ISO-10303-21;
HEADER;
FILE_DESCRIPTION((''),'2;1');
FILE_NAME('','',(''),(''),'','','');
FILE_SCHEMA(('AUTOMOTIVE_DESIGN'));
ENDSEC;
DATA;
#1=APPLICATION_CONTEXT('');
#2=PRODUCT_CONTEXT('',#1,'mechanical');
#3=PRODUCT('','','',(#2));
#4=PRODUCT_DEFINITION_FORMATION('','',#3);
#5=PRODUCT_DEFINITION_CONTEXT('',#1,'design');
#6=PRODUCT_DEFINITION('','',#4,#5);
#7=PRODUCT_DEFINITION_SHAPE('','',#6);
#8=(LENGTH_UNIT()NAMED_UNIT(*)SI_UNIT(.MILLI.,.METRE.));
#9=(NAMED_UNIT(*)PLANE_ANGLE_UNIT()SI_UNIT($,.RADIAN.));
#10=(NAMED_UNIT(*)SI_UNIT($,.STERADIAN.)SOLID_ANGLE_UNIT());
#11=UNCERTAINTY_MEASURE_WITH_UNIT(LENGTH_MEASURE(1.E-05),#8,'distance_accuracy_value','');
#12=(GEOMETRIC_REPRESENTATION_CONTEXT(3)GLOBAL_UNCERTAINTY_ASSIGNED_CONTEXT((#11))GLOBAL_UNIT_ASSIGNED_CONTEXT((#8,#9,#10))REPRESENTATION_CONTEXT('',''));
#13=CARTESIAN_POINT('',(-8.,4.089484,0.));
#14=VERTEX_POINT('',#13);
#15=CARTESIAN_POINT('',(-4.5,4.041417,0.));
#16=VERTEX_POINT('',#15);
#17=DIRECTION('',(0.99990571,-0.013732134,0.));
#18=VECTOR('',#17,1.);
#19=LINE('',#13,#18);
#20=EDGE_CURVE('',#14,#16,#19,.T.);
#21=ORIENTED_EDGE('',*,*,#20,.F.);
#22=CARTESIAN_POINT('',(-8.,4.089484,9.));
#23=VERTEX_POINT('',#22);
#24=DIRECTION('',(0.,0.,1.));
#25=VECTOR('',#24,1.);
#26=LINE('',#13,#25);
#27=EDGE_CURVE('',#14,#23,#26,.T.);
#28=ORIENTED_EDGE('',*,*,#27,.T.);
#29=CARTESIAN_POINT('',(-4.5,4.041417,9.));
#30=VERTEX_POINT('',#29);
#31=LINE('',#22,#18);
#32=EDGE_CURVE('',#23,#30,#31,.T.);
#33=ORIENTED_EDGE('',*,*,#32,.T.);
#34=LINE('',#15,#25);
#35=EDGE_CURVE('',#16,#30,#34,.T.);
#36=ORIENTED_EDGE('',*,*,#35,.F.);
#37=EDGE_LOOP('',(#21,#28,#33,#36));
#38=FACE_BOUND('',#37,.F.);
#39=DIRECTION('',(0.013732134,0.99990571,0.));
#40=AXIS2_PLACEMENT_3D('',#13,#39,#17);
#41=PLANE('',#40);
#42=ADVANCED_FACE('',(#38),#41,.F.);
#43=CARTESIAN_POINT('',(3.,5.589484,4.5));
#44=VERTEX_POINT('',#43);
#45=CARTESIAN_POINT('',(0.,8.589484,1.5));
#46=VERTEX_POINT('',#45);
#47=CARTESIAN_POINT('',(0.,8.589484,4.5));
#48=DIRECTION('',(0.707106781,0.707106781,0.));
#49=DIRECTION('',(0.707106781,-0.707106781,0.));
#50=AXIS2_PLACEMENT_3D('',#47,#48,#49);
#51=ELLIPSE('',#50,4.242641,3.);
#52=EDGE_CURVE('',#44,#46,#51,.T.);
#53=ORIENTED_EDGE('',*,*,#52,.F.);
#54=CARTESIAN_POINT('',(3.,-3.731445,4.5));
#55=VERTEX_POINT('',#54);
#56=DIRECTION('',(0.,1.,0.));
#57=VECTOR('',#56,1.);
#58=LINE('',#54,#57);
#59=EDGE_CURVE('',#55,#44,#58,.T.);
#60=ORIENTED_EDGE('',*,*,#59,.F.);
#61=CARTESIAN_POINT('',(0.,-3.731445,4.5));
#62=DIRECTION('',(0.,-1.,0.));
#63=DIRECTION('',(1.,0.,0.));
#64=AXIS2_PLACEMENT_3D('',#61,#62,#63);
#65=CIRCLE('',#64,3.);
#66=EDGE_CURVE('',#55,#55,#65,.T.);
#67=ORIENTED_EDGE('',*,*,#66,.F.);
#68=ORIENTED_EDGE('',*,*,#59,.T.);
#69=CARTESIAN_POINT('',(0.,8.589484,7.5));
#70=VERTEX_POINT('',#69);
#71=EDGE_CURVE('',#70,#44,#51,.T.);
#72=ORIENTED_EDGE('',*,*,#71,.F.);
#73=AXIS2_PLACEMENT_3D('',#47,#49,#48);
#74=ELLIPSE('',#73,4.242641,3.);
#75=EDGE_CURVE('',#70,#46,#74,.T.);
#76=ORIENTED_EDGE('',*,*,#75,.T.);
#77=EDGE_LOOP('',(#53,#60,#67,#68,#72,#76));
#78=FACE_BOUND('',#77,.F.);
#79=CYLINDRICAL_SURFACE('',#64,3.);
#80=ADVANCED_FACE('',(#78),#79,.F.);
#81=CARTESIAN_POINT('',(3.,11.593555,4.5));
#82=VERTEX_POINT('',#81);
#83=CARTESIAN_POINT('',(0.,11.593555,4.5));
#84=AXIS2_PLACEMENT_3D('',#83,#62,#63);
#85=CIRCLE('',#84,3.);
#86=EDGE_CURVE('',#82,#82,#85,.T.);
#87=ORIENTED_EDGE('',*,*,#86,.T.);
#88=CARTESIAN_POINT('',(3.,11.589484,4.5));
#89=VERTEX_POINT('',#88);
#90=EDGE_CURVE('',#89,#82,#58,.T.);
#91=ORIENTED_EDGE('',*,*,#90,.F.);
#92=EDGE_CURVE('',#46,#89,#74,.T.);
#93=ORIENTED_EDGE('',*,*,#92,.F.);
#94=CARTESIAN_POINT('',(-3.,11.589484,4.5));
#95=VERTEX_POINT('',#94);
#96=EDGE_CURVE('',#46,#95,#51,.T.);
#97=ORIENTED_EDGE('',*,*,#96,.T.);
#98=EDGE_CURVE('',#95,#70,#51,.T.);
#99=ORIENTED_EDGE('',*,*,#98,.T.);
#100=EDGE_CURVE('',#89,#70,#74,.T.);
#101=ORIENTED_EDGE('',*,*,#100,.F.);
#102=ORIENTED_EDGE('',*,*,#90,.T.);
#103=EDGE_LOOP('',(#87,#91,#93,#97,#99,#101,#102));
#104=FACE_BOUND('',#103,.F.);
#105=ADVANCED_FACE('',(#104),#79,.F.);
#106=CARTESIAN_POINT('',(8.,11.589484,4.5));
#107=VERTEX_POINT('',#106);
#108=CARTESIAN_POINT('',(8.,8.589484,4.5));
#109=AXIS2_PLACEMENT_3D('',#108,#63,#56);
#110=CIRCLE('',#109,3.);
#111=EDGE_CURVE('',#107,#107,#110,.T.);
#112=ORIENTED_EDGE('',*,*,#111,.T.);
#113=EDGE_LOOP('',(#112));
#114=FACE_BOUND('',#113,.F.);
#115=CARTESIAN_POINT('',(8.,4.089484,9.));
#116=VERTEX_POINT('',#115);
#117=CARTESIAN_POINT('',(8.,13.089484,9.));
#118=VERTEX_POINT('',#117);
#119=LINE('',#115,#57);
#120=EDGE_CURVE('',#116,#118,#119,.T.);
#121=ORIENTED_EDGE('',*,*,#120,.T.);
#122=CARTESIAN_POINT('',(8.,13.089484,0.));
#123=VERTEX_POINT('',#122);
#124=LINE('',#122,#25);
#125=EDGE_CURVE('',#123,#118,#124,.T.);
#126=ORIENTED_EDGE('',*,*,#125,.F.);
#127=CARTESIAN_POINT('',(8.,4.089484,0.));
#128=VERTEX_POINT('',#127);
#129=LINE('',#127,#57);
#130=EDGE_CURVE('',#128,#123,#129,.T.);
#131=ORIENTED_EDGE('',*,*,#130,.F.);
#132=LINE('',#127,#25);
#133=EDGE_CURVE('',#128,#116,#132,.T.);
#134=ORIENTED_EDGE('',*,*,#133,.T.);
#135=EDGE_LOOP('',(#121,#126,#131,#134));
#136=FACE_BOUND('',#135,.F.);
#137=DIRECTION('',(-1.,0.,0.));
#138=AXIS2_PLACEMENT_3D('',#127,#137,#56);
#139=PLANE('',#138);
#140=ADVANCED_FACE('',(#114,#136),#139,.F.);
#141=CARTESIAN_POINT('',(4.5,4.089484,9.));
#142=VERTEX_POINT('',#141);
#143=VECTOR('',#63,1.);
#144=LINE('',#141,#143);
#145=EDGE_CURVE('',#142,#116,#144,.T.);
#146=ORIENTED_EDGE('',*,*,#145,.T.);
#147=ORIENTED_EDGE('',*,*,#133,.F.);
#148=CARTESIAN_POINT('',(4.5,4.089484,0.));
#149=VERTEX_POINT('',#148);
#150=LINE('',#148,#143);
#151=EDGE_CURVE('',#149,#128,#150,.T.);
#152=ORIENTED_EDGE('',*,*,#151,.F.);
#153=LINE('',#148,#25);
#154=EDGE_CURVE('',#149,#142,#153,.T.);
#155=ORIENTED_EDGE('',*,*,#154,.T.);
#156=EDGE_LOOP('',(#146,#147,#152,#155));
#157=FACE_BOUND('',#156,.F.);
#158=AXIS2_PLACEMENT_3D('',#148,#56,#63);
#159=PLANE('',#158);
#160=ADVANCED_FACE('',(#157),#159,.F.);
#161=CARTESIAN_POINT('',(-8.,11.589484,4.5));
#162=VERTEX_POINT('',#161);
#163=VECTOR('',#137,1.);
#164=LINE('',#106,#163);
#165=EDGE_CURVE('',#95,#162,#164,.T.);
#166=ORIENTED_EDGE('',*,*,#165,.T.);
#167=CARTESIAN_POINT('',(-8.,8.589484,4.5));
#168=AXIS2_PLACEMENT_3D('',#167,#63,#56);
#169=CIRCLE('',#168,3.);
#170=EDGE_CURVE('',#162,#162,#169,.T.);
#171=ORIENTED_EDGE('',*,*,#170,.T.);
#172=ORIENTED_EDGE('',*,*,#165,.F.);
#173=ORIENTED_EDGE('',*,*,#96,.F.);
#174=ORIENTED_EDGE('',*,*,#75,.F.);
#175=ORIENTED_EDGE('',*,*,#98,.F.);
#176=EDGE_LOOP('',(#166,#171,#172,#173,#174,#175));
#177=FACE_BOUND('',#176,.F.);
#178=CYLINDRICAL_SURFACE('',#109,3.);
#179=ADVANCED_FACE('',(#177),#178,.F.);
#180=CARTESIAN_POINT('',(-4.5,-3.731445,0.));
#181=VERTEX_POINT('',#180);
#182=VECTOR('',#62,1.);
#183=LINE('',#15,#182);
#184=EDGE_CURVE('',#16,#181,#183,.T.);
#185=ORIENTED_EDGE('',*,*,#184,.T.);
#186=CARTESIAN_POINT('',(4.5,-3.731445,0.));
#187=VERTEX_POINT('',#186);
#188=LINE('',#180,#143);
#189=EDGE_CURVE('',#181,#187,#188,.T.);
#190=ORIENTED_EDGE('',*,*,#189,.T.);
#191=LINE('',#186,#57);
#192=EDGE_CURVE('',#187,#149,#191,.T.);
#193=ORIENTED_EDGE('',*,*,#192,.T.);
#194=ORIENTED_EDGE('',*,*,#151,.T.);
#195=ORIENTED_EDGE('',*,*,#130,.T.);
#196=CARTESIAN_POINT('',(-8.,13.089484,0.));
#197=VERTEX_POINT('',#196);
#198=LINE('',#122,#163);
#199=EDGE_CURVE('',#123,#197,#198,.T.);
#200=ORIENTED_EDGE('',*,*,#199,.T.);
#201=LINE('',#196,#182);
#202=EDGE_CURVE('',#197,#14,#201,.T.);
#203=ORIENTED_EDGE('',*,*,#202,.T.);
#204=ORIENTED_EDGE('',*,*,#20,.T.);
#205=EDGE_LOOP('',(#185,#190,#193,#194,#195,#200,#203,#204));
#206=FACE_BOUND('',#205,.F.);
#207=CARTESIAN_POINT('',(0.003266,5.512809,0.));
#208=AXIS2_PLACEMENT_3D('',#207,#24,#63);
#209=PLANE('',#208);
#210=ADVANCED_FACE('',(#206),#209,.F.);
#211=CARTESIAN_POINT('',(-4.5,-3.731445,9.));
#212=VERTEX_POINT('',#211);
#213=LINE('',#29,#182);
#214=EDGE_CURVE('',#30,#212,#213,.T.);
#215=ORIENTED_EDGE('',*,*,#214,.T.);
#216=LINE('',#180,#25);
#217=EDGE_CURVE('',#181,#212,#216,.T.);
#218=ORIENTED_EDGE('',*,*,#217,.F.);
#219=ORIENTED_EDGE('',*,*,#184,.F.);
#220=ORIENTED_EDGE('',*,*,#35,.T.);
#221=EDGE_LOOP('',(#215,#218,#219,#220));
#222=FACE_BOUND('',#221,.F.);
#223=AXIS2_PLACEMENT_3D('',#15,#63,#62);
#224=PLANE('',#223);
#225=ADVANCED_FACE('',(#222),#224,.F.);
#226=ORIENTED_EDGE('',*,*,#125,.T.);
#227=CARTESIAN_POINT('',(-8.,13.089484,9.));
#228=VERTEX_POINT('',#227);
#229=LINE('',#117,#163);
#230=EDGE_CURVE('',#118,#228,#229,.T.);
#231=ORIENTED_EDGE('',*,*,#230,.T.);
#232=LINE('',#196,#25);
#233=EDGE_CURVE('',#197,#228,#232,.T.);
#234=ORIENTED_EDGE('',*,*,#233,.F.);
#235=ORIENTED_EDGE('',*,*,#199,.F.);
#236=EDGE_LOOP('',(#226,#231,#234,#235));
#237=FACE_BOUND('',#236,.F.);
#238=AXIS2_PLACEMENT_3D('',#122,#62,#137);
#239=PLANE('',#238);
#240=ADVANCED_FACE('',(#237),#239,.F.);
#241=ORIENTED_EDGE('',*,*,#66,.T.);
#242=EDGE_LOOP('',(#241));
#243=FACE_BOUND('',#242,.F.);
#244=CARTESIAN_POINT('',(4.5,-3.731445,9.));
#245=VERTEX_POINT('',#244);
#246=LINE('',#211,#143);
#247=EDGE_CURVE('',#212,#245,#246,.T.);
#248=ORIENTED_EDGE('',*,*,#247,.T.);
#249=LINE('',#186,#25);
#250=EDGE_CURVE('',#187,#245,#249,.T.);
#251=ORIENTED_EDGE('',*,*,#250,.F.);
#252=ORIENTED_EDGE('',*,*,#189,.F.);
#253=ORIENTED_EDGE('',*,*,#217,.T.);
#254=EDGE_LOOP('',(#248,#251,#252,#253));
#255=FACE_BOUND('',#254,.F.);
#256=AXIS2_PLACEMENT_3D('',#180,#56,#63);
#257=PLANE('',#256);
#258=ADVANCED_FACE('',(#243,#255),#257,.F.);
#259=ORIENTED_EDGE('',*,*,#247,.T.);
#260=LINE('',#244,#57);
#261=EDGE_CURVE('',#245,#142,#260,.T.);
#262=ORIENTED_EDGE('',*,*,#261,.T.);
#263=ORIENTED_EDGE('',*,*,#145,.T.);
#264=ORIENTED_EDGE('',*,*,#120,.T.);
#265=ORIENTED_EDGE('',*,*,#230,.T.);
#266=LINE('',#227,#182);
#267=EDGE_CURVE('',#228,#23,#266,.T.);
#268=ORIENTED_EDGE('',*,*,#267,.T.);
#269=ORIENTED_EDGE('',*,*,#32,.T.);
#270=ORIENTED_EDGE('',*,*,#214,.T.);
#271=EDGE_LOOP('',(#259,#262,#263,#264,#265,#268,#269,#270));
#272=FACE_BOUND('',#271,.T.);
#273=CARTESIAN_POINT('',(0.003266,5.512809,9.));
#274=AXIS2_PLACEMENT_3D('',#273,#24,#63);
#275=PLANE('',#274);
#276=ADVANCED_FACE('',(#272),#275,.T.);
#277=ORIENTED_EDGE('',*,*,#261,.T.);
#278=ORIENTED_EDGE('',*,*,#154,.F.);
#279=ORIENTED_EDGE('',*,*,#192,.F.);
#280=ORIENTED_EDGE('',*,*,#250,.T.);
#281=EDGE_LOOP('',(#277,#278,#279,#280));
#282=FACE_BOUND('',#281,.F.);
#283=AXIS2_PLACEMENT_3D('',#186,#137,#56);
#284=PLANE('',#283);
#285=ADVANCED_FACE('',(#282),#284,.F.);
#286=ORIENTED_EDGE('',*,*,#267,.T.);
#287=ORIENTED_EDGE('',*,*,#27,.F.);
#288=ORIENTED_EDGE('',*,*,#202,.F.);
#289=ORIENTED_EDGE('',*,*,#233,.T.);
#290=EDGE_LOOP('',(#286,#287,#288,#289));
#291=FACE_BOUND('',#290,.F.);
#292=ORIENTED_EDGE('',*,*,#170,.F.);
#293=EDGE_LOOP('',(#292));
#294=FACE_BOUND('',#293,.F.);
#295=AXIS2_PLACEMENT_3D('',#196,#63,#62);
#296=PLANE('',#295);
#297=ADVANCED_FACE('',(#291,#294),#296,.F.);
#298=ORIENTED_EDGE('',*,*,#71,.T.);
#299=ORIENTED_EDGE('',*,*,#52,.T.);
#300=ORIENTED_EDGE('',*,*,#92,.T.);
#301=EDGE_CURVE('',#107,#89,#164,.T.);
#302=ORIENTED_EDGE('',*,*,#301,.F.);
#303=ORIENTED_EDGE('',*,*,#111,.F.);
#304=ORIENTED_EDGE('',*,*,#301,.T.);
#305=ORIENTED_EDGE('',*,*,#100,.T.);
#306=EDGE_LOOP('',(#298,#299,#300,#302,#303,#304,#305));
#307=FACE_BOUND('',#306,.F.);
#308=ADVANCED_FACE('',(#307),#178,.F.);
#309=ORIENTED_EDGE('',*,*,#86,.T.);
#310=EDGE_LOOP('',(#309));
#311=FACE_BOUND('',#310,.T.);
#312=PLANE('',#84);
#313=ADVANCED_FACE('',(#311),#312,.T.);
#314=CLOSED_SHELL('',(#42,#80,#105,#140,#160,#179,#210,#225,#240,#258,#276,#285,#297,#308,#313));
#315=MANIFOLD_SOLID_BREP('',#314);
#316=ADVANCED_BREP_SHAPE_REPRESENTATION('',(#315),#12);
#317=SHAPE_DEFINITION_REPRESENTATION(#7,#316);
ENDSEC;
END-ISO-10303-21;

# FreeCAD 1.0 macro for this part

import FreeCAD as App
import Part
import Sketcher
from FreeCAD import Vector
Q = App.Units.Quantity


def add_polygon(sketch, points):
    """Adds a closed chain of lines whose ends are joined by coincident constraints."""
    first, n = sketch.GeometryCount, len(points)
    for a, b in zip(points, points[1:] + points[:1]):
        sketch.addGeometry(Part.LineSegment(App.Vector(*a, 0), App.Vector(*b, 0)), False)
    for i in range(n):
        sketch.addConstraint(Sketcher.Constraint("Coincident", first + i, 2, first + (i + 1) % n, 1))

doc = App.newDocument("Part")
body = doc.addObject("PartDesign::Body", "Body")

sketch1 = body.newObject("Sketcher::SketchObject", "Sketch")
sketch1.AttachmentSupport = (doc.getObject("XY_Plane"), [""])
sketch1.MapMode = "FlatFace"
add_polygon(sketch1, [(8, 13.089484), (-8, 13.089484), (-8, 4.089484), (-4.5, 4.041417), (-4.5, -3.731445), (4.5, -3.731445), (4.5, 4.089484), (8, 4.089484)])
sketch1.addConstraint([
    Sketcher.Constraint("Horizontal", 0),
    Sketcher.Constraint("Vertical", 1),
    Sketcher.Constraint("Vertical", 3),
    Sketcher.Constraint("Horizontal", 4),
    Sketcher.Constraint("Vertical", 5),
    Sketcher.Constraint("Horizontal", 6),
    Sketcher.Constraint("Vertical", 7),
    Sketcher.Constraint("Symmetric", 1, 2, 6, 2, -2),
    Sketcher.Constraint("Equal", 4, 1),
    Sketcher.Constraint("DistanceX", 0, 2, 0, 1, Q("16 mm")),
    Sketcher.Constraint("DistanceX", 4, 1, 4, 2, Q("9 mm")),
    Sketcher.Constraint("DistanceX", 6, 1, 6, 2, Q("3.5 mm")),
    Sketcher.Constraint("DistanceY", 5, 1, 5, 2, Q("7.820929 mm")),
    Sketcher.Constraint("Distance", 2, Q("3.50033 mm")),
    Sketcher.Constraint("DistanceY", -1, 1, 0, 2, Q("13.089484 mm")),
])
pad1 = body.newObject("PartDesign::Pad", "Pad")
pad1.Profile = sketch1
pad1.Length = 9

sketch2 = body.newObject("Sketcher::SketchObject", "Sketch001")
sketch2.AttachmentSupport = (doc.getObject("YZ_Plane"), [""])
sketch2.MapMode = "FlatFace"
sketch2.AttachmentOffset = App.Placement(Vector(0, 0, 8), App.Rotation())
sketch2.addGeometry(Part.Circle(Vector(8.589484, 4.5, 0), Vector(0, 0, 1), 3), False)
sketch2.addConstraint([
    Sketcher.Constraint("Diameter", 0, Q("6 mm")),
    Sketcher.Constraint("DistanceY", -1, 1, 0, 3, Q("4.5 mm")),
    Sketcher.Constraint("DistanceX", -1, 1, 0, 3, Q("8.589484 mm")),
])
pocket1 = body.newObject("PartDesign::Pocket", "Pocket")
pocket1.Profile = sketch2
pocket1.Length = 16

sketch3 = body.newObject("Sketcher::SketchObject", "Sketch002")
sketch3.AttachmentSupport = (doc.getObject("XZ_Plane"), [""])
sketch3.MapMode = "FlatFace"
sketch3.AttachmentOffset = App.Placement(Vector(0, 0, 3.731445), App.Rotation())
sketch3.addGeometry(Part.Circle(Vector(0, 4.5, 0), Vector(0, 0, 1), 3), False)
sketch3.addConstraint([
    Sketcher.Constraint("PointOnObject", 0, 3, -2),
    Sketcher.Constraint("Diameter", 0, Q("6 mm")),
    Sketcher.Constraint("DistanceY", -1, 1, 0, 3, Q("4.5 mm")),
])
pocket2 = body.newObject("PartDesign::Pocket", "Pocket001")
pocket2.Profile = sketch3
pocket2.Length = 15.325

doc.recompute()
